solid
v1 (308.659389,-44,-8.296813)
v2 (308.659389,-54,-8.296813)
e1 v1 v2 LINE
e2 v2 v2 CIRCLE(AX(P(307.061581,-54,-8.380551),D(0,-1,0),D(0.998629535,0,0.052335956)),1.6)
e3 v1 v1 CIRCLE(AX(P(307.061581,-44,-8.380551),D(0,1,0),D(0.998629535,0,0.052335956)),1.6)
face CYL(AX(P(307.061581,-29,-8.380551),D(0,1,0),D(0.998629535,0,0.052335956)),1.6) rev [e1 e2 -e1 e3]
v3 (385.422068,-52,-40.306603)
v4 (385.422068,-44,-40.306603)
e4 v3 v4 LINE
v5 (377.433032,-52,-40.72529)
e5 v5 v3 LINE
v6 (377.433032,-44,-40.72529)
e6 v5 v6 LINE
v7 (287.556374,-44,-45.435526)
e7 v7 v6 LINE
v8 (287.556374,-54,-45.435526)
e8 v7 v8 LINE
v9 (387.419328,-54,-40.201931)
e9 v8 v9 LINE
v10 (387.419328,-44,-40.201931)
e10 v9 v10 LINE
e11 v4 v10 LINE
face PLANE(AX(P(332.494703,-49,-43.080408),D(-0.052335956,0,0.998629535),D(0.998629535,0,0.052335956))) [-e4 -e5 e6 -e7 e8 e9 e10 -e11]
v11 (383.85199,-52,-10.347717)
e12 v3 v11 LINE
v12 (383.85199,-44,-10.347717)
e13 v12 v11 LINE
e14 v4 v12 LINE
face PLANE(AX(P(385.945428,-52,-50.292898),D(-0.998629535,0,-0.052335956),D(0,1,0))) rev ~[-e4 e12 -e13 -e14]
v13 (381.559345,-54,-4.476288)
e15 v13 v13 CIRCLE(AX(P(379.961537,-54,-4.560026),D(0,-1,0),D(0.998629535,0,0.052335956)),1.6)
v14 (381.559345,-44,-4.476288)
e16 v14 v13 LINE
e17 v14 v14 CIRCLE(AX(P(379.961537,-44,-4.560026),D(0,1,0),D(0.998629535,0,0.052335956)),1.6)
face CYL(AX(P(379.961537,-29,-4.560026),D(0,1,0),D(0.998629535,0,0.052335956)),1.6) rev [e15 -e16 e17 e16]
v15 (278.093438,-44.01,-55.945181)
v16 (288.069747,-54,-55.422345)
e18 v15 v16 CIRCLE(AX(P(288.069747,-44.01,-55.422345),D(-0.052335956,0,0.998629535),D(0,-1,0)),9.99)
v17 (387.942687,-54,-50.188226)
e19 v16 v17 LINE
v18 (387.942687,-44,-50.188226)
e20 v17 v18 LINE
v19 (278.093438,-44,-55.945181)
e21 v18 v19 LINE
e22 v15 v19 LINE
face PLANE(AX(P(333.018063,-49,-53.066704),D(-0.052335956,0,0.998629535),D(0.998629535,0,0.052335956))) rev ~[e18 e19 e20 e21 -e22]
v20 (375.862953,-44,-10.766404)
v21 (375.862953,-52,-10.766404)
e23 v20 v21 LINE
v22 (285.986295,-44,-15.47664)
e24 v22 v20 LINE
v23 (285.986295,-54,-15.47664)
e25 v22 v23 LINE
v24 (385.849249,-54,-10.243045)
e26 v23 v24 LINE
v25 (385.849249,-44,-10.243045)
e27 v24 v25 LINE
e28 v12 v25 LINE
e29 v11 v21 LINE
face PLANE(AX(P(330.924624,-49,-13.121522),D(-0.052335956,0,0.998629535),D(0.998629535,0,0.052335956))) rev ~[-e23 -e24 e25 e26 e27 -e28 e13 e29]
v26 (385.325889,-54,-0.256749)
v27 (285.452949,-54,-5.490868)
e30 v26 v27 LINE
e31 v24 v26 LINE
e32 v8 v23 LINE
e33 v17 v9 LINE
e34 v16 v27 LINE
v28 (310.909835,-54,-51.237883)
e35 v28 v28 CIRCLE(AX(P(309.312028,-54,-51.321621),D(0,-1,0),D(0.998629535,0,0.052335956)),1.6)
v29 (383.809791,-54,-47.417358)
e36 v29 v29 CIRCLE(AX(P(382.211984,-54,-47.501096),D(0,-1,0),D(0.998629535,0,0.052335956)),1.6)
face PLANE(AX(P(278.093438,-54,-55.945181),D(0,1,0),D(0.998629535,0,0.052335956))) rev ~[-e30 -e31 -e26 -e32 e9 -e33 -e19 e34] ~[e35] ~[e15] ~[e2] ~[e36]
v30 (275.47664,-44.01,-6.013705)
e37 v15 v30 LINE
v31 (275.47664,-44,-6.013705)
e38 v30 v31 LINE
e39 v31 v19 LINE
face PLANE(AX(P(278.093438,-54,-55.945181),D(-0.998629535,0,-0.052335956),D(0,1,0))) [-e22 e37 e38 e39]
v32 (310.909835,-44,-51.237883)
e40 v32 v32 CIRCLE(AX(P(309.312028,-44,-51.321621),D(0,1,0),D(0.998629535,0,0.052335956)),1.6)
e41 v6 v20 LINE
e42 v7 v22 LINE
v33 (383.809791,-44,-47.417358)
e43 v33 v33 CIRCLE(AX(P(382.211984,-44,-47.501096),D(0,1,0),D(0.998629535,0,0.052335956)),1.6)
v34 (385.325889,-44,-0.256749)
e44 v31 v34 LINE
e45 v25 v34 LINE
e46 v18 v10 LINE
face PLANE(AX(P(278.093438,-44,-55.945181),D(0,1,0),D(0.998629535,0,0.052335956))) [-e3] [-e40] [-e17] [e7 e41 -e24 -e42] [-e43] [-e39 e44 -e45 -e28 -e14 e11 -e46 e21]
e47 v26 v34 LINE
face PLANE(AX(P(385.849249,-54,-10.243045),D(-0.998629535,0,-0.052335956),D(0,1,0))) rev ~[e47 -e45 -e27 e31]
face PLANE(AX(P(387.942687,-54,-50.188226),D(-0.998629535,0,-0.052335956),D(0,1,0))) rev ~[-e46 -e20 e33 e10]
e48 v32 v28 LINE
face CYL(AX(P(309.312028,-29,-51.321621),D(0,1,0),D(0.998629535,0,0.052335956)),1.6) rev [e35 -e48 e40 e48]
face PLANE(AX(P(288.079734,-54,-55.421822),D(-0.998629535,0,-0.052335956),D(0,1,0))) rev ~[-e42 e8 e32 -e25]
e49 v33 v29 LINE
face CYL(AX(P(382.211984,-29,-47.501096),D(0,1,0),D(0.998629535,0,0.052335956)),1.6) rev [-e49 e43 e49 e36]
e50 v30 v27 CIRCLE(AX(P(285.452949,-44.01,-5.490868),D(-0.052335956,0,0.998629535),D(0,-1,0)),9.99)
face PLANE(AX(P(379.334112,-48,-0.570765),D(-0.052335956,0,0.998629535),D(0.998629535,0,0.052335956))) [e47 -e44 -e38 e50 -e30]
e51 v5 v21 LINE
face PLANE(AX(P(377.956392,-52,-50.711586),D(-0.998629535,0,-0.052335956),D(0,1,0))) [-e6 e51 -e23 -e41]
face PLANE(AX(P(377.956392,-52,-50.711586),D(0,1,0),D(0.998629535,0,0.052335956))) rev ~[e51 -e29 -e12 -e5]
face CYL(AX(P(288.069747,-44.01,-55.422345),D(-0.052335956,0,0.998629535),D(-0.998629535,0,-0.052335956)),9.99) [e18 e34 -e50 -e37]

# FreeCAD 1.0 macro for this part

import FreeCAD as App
import Part
import Sketcher
Q = App.Units.Quantity


def edges_at(feature, points):
    """Names of the edges that pass closest to the given points."""
    edges = feature.Shape.Edges
    near = lambda p: min(range(len(edges)), key=lambda i: edges[i].distToShape(Part.Vertex(*p))[0])
    return sorted({f"Edge{near(p) + 1}" for p in points})

doc = App.newDocument("Part")
body = doc.addObject("PartDesign::Body", "Body")

sketch1 = body.newObject("Sketcher::SketchObject", "Sketch")
sketch1.AttachmentSupport = (doc.getObject("XZ_Plane"), [""])
sketch1.MapMode = "FlatFace"
sketch1.AttachmentOffset = App.Placement(App.Vector(0, 0, -96), App.Rotation())
sketch1.addGeometry(Part.Circle(App.Vector(76.5, 46.5, 0), App.Vector(0, 0, 1), 1.6), False)
sketch1.addConstraint([
    Sketcher.Constraint("Diameter", 0, Q("3.2 mm")),
    Sketcher.Constraint("DistanceX", -1, 1, 0, 3, Q("76.5 mm")),
    Sketcher.Constraint("DistanceY", -1, 1, 0, 3, Q("46.5 mm")),
])
pad1 = body.newObject("PartDesign::Pad", "Pad")
pad1.Profile = sketch1
pad1.Length = 25
body2 = doc.addObject("PartDesign::Body", "Body001")

sketch2 = body2.newObject("Sketcher::SketchObject", "Sketch001")
sketch2.AttachmentSupport = (doc.getObject("XZ_Plane001"), [""])
sketch2.MapMode = "FlatFace"
sketch2.AttachmentOffset = App.Placement(App.Vector(0, 0, -96), App.Rotation())
sketch2.addGeometry(Part.Circle(App.Vector(76.5, 3.5, 0), App.Vector(0, 0, 1), 1.6), False)
sketch2.addConstraint([
    Sketcher.Constraint("Diameter", 0, Q("3.2 mm")),
    Sketcher.Constraint("DistanceX", -1, 1, 0, 3, Q("76.5 mm")),
    Sketcher.Constraint("DistanceY", -1, 1, 0, 3, Q("3.5 mm")),
])
pad2 = body2.newObject("PartDesign::Pad", "Pad001")
pad2.Profile = sketch2
pad2.Length = 25
body3 = doc.addObject("PartDesign::Body", "Body002")

sketch3 = body3.newObject("Sketcher::SketchObject", "Sketch002")
sketch3.AttachmentSupport = (doc.getObject("XZ_Plane002"), [""])
sketch3.MapMode = "FlatFace"
sketch3.AttachmentOffset = App.Placement(App.Vector(0, 0, -96), App.Rotation())
sketch3.addGeometry(Part.Circle(App.Vector(3.5, 46.5, 0), App.Vector(0, 0, 1), 1.6), False)
sketch3.addConstraint([
    Sketcher.Constraint("Diameter", 0, Q("3.2 mm")),
    Sketcher.Constraint("DistanceX", -1, 1, 0, 3, Q("3.5 mm")),
    Sketcher.Constraint("DistanceY", -1, 1, 0, 3, Q("46.5 mm")),
])
pad3 = body3.newObject("PartDesign::Pad", "Pad002")
pad3.Profile = sketch3
pad3.Length = 25
body4 = doc.addObject("PartDesign::Body", "Body003")
body4.AllowCompound = True

sketch4 = body4.newObject("Sketcher::SketchObject", "Sketch003")
sketch4.AttachmentSupport = (doc.getObject("XZ_Plane003"), [""])
sketch4.MapMode = "FlatFace"
sketch4.AttachmentOffset = App.Placement(App.Vector(0, 0, -96), App.Rotation())
sketch4.addGeometry(Part.Circle(App.Vector(3.5, 3.5, 0), App.Vector(0, 0, 1), 1.6), False)
sketch4.addConstraint([
    Sketcher.Constraint("Diameter", 0, Q("3.2 mm")),
    Sketcher.Constraint("DistanceX", -1, 1, 0, 3, Q("3.5 mm")),
    Sketcher.Constraint("DistanceY", -1, 1, 0, 3, Q("3.5 mm")),
])
pad4 = body4.newObject("PartDesign::Pad", "Pad003")
pad4.Profile = sketch4
pad4.Length = 25
doc.recompute()

boolean = body4.newObject("PartDesign::Boolean", "Boolean")
boolean.Type = "Fuse"
boolean.addObjects([body])
doc.recompute()

boolean2 = body4.newObject("PartDesign::Boolean", "Boolean001")
boolean2.Type = "Fuse"
boolean2.addObjects([body2])
doc.recompute()

boolean3 = body4.newObject("PartDesign::Boolean", "Boolean002")
boolean3.Type = "Fuse"
boolean3.addObjects([body3])
body5 = doc.addObject("PartDesign::Body", "Body004")
body5.AllowCompound = True
doc.recompute()

body4.Placement = App.Placement(App.Vector(306, -120, -55), App.Rotation(App.Vector(0, -1, 0), 3))
boolean4 = body5.newObject("PartDesign::Boolean", "Boolean003")
boolean4.Type = "Fuse"
boolean4.addObjects([body4])
body6 = doc.addObject("PartDesign::Body", "Body005")

sketch5 = body6.newObject("Sketcher::SketchObject", "Sketch004")
sketch5.AttachmentSupport = (doc.getObject("XY_Plane005"), [""])
sketch5.MapMode = "FlatFace"
sketch5.AttachmentOffset = App.Placement(App.Vector(0, 0, -40), App.Rotation())
sketch5.addGeometry([
    Part.LineSegment(App.Vector(100, 10, 0), App.Vector(100, 2, 0)),
    Part.LineSegment(App.Vector(100, 2, 0), App.Vector(108, 2, 0)),
    Part.LineSegment(App.Vector(108, 2, 0), App.Vector(108, 10, 0)),
    Part.LineSegment(App.Vector(108, 10, 0), App.Vector(100, 10, 0)),
], False)
sketch5.addConstraint([
    Sketcher.Constraint("Coincident", 0, 2, 1, 1),
    Sketcher.Constraint("Coincident", 1, 2, 2, 1),
    Sketcher.Constraint("Coincident", 2, 2, 3, 1),
    Sketcher.Constraint("Coincident", 3, 2, 0, 1),
    Sketcher.Constraint("Vertical", 0),
    Sketcher.Constraint("Horizontal", 1),
    Sketcher.Constraint("Vertical", 2),
    Sketcher.Constraint("Horizontal", 3),
    Sketcher.Constraint("Equal", 3, 0),
    Sketcher.Constraint("DistanceX", 1, 1, 1, 2, Q("8 mm")),
    Sketcher.Constraint("DistanceX", -1, 1, 0, 2, Q("100 mm")),
    Sketcher.Constraint("DistanceY", -1, 1, 0, 2, Q("2 mm")),
])
pad5 = body6.newObject("PartDesign::Pad", "Pad004")
pad5.Profile = sketch5
pad5.Length = 50
body7 = doc.addObject("PartDesign::Body", "Body006")

sketch6 = body7.newObject("Sketcher::SketchObject", "Sketch005")
sketch6.AttachmentSupport = (doc.getObject("XY_Plane006"), [""])
sketch6.MapMode = "FlatFace"
sketch6.AttachmentOffset = App.Placement(App.Vector(0, 0, -40), App.Rotation())
sketch6.addGeometry([
    Part.LineSegment(App.Vector(0, 10, 0), App.Vector(0, 0, 0)),
    Part.LineSegment(App.Vector(0, 0, 0), App.Vector(110, 0, 0)),
    Part.LineSegment(App.Vector(110, 0, 0), App.Vector(110, 10, 0)),
    Part.LineSegment(App.Vector(110, 10, 0), App.Vector(0, 10, 0)),
], False)
sketch6.addConstraint([
    Sketcher.Constraint("Coincident", 0, 2, 1, 1),
    Sketcher.Constraint("Coincident", 1, 2, 2, 1),
    Sketcher.Constraint("Coincident", 2, 2, 3, 1),
    Sketcher.Constraint("Coincident", 3, 2, 0, 1),
    Sketcher.Constraint("Vertical", 0),
    Sketcher.Constraint("Horizontal", 1),
    Sketcher.Constraint("Vertical", 2),
    Sketcher.Constraint("Horizontal", 3),
    Sketcher.Constraint("Coincident", 0, 2, -1, 1),
    Sketcher.Constraint("DistanceX", 1, 1, 1, 2, Q("110 mm")),
    Sketcher.Constraint("DistanceY", 0, 2, 0, 1, Q("10 mm")),
])
pad6 = body7.newObject("PartDesign::Pad", "Pad005")
pad6.Profile = sketch6
pad6.Length = 10
body8 = doc.addObject("PartDesign::Body", "Body007")

sketch7 = body8.newObject("Sketcher::SketchObject", "Sketch006")
sketch7.AttachmentSupport = (doc.getObject("XY_Plane007"), [""])
sketch7.MapMode = "FlatFace"
sketch7.AttachmentOffset = App.Placement(App.Vector(0, 0, -40), App.Rotation())
sketch7.addGeometry([
    Part.LineSegment(App.Vector(0, 10, 0), App.Vector(0, 0, 0)),
    Part.LineSegment(App.Vector(0, 0, 0), App.Vector(10, 0, 0)),
    Part.LineSegment(App.Vector(10, 0, 0), App.Vector(10, 10, 0)),
    Part.LineSegment(App.Vector(10, 10, 0), App.Vector(0, 10, 0)),
], False)
sketch7.addConstraint([
    Sketcher.Constraint("Coincident", 0, 2, 1, 1),
    Sketcher.Constraint("Coincident", 1, 2, 2, 1),
    Sketcher.Constraint("Coincident", 2, 2, 3, 1),
    Sketcher.Constraint("Coincident", 3, 2, 0, 1),
    Sketcher.Constraint("Vertical", 0),
    Sketcher.Constraint("Horizontal", 1),
    Sketcher.Constraint("Vertical", 2),
    Sketcher.Constraint("Horizontal", 3),
    Sketcher.Constraint("Coincident", 0, 2, -1, 1),
    Sketcher.Constraint("Equal", 3, 0),
    Sketcher.Constraint("DistanceX", 1, 1, 1, 2, Q("10 mm")),
])
pad7 = body8.newObject("PartDesign::Pad", "Pad006")
pad7.Profile = sketch7
pad7.Length = 50
body9 = doc.addObject("PartDesign::Body", "Body008")

sketch8 = body9.newObject("Sketcher::SketchObject", "Sketch007")
sketch8.AttachmentSupport = (doc.getObject("XY_Plane008"), [""])
sketch8.MapMode = "FlatFace"
sketch8.addGeometry([
    Part.LineSegment(App.Vector(0, 10, 0), App.Vector(0, 0, 0)),
    Part.LineSegment(App.Vector(0, 0, 0), App.Vector(110, 0, 0)),
    Part.LineSegment(App.Vector(110, 0, 0), App.Vector(110, 10, 0)),
    Part.LineSegment(App.Vector(110, 10, 0), App.Vector(0, 10, 0)),
], False)
sketch8.addConstraint([
    Sketcher.Constraint("Coincident", 0, 2, 1, 1),
    Sketcher.Constraint("Coincident", 1, 2, 2, 1),
    Sketcher.Constraint("Coincident", 2, 2, 3, 1),
    Sketcher.Constraint("Coincident", 3, 2, 0, 1),
    Sketcher.Constraint("Vertical", 0),
    Sketcher.Constraint("Horizontal", 1),
    Sketcher.Constraint("Vertical", 2),
    Sketcher.Constraint("Horizontal", 3),
    Sketcher.Constraint("Coincident", 0, 2, -1, 1),
    Sketcher.Constraint("DistanceX", 1, 1, 1, 2, Q("110 mm")),
    Sketcher.Constraint("DistanceY", 0, 2, 0, 1, Q("10 mm")),
])
pad8 = body9.newObject("PartDesign::Pad", "Pad007")
pad8.Profile = sketch8
pad8.Length = 10
doc.recompute()

boolean5 = body9.newObject("PartDesign::Boolean", "Boolean004")
boolean5.Type = "Fuse"
boolean5.addObjects([body6])
doc.recompute()

boolean6 = body9.newObject("PartDesign::Boolean", "Boolean005")
boolean6.Type = "Fuse"
boolean6.addObjects([body7])
doc.recompute()

boolean7 = body9.newObject("PartDesign::Boolean", "Boolean006")
boolean7.Type = "Fuse"
boolean7.addObjects([body8])
doc.recompute()

fillet = body9.newObject("PartDesign::Fillet", "Fillet")
fillet.Base = (boolean7, edges_at(boolean7, [(0, 0, -15)]))
fillet.Radius = 9.99
body10 = doc.addObject("PartDesign::Body", "Body009")
doc.recompute()

body9.Placement = App.Placement(App.Vector(276, -49, -16), App.Rotation(App.Vector(0, -1, 0), 3))
boolean8 = body10.newObject("PartDesign::Boolean", "Boolean007")
boolean8.Type = "Fuse"
boolean8.addObjects([body9])
doc.recompute()

boolean9 = body10.newObject("PartDesign::Boolean", "Boolean008")
boolean9.Type = "Cut"
boolean9.addObjects([body5])
body11 = doc.addObject("PartDesign::Body", "Body010")
doc.recompute()

body10.Placement = App.Placement(App.Vector(0, -5, 0), App.Rotation(App.Vector(0, 0, 1), 0))
boolean10 = body11.newObject("PartDesign::Boolean", "Boolean009")
boolean10.Type = "Fuse"
boolean10.addObjects([body10])

doc.recompute()
